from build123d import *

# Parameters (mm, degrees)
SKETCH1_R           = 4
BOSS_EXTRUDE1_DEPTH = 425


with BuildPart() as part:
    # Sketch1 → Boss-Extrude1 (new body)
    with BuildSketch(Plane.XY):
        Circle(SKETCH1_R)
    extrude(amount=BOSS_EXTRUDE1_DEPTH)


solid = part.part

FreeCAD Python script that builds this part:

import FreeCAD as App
import Part
import Sketcher

V = App.Vector

doc = App.newDocument("Part")
body = doc.addObject("PartDesign::Body", "Body")

sketch1 = doc.addObject("Sketcher::SketchObject", "Sketch")
body.addObject(sketch1)
sketch1.AttachmentSupport = (doc.XY_Plane, [""])
sketch1.MapMode = "FlatFace"
sketch1.addGeometry(Part.Circle(V(0, 0, 0), V(0, 0, 1), 4), False)
sketch1.addConstraint(Sketcher.Constraint("Coincident", 0, 3, -1, 1))
sketch1.addConstraint(Sketcher.Constraint("Diameter", 0, 8.0))
pad1 = doc.addObject("PartDesign::Pad", "Pad")
body.addObject(pad1)
pad1.Profile = sketch1
pad1.Length = 425

doc.recompute()
